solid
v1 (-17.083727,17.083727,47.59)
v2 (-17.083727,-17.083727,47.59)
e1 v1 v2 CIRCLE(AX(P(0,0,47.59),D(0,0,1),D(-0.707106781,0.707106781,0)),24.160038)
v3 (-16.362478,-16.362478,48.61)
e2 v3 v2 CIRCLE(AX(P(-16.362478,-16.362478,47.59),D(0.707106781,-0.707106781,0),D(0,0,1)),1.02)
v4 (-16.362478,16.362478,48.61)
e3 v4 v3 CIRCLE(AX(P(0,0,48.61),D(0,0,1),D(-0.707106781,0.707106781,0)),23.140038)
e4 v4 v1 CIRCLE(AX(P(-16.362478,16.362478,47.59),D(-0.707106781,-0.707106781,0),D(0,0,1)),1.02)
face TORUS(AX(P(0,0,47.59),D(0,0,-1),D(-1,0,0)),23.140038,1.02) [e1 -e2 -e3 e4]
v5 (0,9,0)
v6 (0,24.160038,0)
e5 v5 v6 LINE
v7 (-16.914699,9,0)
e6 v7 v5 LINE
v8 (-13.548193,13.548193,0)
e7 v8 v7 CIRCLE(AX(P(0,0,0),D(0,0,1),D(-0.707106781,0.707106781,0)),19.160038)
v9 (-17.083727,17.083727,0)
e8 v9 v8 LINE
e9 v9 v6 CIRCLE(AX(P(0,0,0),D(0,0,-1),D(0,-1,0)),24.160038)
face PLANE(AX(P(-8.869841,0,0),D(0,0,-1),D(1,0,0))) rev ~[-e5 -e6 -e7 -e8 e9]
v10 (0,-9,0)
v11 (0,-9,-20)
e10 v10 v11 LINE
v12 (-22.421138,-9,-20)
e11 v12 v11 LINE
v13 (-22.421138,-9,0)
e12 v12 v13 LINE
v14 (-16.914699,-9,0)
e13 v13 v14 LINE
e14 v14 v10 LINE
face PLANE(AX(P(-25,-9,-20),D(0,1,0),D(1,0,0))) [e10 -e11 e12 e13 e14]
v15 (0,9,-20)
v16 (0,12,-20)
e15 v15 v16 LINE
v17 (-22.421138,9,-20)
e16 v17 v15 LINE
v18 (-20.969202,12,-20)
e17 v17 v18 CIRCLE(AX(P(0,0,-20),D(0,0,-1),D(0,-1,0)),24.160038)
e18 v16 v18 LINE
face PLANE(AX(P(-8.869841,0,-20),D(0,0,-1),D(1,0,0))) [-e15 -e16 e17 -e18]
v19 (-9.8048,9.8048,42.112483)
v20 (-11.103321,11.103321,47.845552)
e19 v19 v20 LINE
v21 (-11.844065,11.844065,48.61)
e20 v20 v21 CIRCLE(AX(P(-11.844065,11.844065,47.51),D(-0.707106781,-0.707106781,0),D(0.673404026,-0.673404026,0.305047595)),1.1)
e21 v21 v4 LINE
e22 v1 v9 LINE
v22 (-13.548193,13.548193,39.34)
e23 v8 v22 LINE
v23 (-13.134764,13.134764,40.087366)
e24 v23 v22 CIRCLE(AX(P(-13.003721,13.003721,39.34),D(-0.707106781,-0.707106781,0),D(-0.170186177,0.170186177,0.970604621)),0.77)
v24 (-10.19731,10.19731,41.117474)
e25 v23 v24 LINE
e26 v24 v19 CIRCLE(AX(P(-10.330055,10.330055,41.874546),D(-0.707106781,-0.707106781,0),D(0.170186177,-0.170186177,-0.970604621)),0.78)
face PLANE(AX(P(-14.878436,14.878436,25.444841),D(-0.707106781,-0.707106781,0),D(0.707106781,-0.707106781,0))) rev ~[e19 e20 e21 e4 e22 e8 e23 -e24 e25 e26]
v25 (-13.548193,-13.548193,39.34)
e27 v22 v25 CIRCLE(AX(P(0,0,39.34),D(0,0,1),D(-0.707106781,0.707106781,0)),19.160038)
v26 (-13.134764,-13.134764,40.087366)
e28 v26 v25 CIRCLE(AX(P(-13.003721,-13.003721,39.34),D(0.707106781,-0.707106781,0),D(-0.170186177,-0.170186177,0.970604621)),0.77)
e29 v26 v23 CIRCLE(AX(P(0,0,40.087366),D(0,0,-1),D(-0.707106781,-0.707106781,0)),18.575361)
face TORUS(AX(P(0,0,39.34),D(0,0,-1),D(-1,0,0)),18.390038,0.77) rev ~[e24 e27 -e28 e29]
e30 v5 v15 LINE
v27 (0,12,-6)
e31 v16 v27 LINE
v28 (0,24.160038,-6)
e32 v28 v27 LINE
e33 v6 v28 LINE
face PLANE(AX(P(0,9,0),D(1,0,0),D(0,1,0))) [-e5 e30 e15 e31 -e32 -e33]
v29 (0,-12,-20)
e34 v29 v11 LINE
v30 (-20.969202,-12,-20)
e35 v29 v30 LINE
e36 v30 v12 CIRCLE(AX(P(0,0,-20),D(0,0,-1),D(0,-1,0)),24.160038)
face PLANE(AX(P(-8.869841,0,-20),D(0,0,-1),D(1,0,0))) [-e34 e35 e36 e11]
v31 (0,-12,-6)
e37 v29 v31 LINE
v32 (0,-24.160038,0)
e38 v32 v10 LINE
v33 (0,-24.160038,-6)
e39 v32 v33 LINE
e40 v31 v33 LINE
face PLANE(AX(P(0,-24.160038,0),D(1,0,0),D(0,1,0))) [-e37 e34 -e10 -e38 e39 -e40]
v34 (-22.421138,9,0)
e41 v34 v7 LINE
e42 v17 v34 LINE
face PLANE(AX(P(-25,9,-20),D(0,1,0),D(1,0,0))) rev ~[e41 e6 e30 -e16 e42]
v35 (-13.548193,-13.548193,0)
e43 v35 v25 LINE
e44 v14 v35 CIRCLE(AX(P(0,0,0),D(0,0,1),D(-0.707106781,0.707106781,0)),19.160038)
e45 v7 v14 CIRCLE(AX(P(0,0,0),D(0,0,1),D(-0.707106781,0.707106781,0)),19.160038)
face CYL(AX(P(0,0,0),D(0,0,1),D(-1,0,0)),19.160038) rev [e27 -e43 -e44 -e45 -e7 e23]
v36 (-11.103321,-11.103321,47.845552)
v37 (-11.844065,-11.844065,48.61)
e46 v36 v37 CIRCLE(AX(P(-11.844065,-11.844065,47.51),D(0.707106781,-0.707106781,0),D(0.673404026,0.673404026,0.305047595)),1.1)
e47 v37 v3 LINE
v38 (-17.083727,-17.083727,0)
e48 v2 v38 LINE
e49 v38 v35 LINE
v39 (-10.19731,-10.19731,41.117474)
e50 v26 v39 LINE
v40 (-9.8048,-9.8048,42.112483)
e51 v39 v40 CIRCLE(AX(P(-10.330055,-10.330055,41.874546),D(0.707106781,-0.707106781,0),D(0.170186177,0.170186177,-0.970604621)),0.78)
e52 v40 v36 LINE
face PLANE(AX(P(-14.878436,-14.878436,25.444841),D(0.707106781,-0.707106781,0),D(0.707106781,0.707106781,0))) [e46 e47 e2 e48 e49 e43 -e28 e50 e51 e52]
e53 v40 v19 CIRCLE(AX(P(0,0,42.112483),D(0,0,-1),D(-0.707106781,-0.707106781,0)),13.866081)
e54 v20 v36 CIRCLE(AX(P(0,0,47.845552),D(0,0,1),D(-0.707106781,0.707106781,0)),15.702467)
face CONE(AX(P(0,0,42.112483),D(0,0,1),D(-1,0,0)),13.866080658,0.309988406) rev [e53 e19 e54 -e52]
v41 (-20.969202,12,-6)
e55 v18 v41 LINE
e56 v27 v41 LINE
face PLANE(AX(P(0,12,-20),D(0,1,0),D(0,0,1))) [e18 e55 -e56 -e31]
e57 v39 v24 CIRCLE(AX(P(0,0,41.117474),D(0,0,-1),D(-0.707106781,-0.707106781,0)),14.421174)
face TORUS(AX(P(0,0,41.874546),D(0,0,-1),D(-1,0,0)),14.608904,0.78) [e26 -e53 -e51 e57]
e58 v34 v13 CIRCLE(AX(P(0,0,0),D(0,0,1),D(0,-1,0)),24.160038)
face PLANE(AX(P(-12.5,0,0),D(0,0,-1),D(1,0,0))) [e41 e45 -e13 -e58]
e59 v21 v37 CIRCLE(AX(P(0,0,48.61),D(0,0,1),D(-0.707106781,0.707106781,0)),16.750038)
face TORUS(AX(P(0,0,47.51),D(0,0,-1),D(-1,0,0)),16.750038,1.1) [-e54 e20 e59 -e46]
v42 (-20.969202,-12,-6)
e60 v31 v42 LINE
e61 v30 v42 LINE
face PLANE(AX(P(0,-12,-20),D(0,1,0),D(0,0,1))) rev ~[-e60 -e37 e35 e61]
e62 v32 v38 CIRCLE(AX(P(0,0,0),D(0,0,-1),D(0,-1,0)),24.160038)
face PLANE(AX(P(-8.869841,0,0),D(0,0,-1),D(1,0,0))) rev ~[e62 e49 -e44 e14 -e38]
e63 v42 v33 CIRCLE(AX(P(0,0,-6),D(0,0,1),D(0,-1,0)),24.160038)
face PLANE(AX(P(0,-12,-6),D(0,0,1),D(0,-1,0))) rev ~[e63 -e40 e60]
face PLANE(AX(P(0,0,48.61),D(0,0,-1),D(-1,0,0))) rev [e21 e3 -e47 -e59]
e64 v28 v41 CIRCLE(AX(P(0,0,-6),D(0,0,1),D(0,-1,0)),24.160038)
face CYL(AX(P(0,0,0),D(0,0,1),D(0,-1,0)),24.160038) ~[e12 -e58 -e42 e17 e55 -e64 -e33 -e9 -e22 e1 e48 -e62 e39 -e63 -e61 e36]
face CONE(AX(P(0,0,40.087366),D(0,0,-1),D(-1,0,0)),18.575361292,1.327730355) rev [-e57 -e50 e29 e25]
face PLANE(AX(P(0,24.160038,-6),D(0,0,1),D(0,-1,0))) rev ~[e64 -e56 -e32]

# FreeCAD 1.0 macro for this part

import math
import FreeCAD as App
import Part
import Sketcher

V = App.Vector

doc = App.newDocument("Part")
body = doc.addObject("PartDesign::Body", "Body")

# Sketch on XZ plane
sketch1 = body.newObject("Sketcher::SketchObject", "Sketch")
sketch1.AttachmentSupport = (doc.getObject("XZ_Plane"), [""])
sketch1.MapMode = "FlatFace"
sketch1.addGeometry([
    Part.LineSegment(V(-13.9, 42.1, 0), V(-15.7, 47.8, 0)),  # 0
    Part.ArcOfCircle(Part.Circle(V(-16.8, 47.5, 0), V(0, 0, 1), 1.1), math.radians(18), math.radians(90)),  # 1
    Part.LineSegment(V(-16.8, 48.6, 0), V(-23.1, 48.6, 0)),  # 2
    Part.ArcOfCircle(Part.Circle(V(-23.1, 47.6, 0), V(0, 0, 1), 1), math.radians(90), math.radians(180)),  # 3
    Part.LineSegment(V(-24.2, 47.6, 0), V(-24.2, 0, 0)),  # 4
    Part.LineSegment(V(-24.2, 0, 0), V(-19.2, 0, 0)),  # 5
    Part.LineSegment(V(-19.2, 0, 0), V(-19.2, 39.3, 0)),  # 6
    Part.ArcOfCircle(Part.Circle(V(-18.4, 39.3, 0), V(0, 0, 1), 0.8), math.radians(104), math.radians(180)),  # 7
    Part.LineSegment(V(-18.6, 40.1, 0), V(-14.4, 41.1, 0)),  # 8
    Part.ArcOfCircle(Part.Circle(V(-14.6, 41.9, 0), V(0, 0, 1), 0.8), math.radians(-76), math.radians(18)),  # 9
], False)
sketch1.addConstraint([
    Sketcher.Constraint("Tangent", 0, 2, 1, 1),
    Sketcher.Constraint("Tangent", 1, 2, 2, 1),
    Sketcher.Constraint("Tangent", 2, 2, 3, 1),
    Sketcher.Constraint("Tangent", 3, 2, 4, 1),
    Sketcher.Constraint("Coincident", 4, 2, 5, 1),
    Sketcher.Constraint("Coincident", 5, 2, 6, 1),
    Sketcher.Constraint("Tangent", 6, 2, 7, 2),
    Sketcher.Constraint("Tangent", 7, 1, 8, 1),
    Sketcher.Constraint("Tangent", 8, 2, 9, 1),
    Sketcher.Constraint("Tangent", 9, 2, 0, 1),
    Sketcher.Constraint("Horizontal", 2),
    Sketcher.Constraint("Vertical", 4),
    Sketcher.Constraint("Horizontal", 5),
    Sketcher.Constraint("Vertical", 6),
    Sketcher.Constraint("PointOnObject", 4, 2, -1),
    Sketcher.Constraint("Radius", 1, 1.1),
    Sketcher.Constraint("DistanceX", 5, 1, 5, 2, 5.0),
    Sketcher.Constraint("Radius", 3, 1.02),
    Sketcher.Constraint("Radius", 7, 0.77),
    Sketcher.Constraint("Radius", 9, 0.78),
    Sketcher.Constraint("DistanceX", 2, 2, 2, 1, 6.39),
    Sketcher.Constraint("DistanceY", 4, 2, 4, 1, 47.59),
    Sketcher.Constraint("DistanceY", 6, 1, 6, 2, 39.34),
    Sketcher.Constraint("Distance", 0, 6.02),
    Sketcher.Constraint("Distance", 8, 4.28),
    Sketcher.Constraint("DistanceX", 1, 3, -1, 1, 16.750038),
])
revolution = body.newObject("PartDesign::Revolution", "Revolution")
revolution.Profile = sketch1
revolution.ReferenceAxis = (sketch1, ["V_Axis"])
revolution.Angle = 45

# Sketch on XZ plane
sketch2 = body.newObject("Sketcher::SketchObject", "Sketch001")
sketch2.AttachmentSupport = (doc.getObject("XZ_Plane"), [""])
sketch2.MapMode = "FlatFace"
sketch2.addGeometry([
    Part.LineSegment(V(-13.9, 42.1, 0), V(-15.7, 47.8, 0)),  # 0
    Part.ArcOfCircle(Part.Circle(V(-16.8, 47.5, 0), V(0, 0, 1), 1.1), math.radians(18), math.radians(90)),  # 1
    Part.LineSegment(V(-16.8, 48.6, 0), V(-23.1, 48.6, 0)),  # 2
    Part.ArcOfCircle(Part.Circle(V(-23.1, 47.6, 0), V(0, 0, 1), 1), math.radians(90), math.radians(180)),  # 3
    Part.LineSegment(V(-24.2, 47.6, 0), V(-24.2, 0, 0)),  # 4
    Part.LineSegment(V(-24.2, 0, 0), V(-19.2, 0, 0)),  # 5
    Part.LineSegment(V(-19.2, 0, 0), V(-19.2, 39.3, 0)),  # 6
    Part.ArcOfCircle(Part.Circle(V(-18.4, 39.3, 0), V(0, 0, 1), 0.8), math.radians(104), math.radians(180)),  # 7
    Part.LineSegment(V(-18.6, 40.1, 0), V(-14.4, 41.1, 0)),  # 8
    Part.ArcOfCircle(Part.Circle(V(-14.6, 41.9, 0), V(0, 0, 1), 0.8), math.radians(-76), math.radians(18)),  # 9
], False)
sketch2.addConstraint([
    Sketcher.Constraint("Tangent", 0, 2, 1, 1),
    Sketcher.Constraint("Tangent", 1, 2, 2, 1),
    Sketcher.Constraint("Tangent", 2, 2, 3, 1),
    Sketcher.Constraint("Tangent", 3, 2, 4, 1),
    Sketcher.Constraint("Coincident", 4, 2, 5, 1),
    Sketcher.Constraint("Coincident", 5, 2, 6, 1),
    Sketcher.Constraint("Tangent", 6, 2, 7, 2),
    Sketcher.Constraint("Tangent", 7, 1, 8, 1),
    Sketcher.Constraint("Tangent", 8, 2, 9, 1),
    Sketcher.Constraint("Tangent", 9, 2, 0, 1),
    Sketcher.Constraint("Horizontal", 2),
    Sketcher.Constraint("Vertical", 4),
    Sketcher.Constraint("Horizontal", 5),
    Sketcher.Constraint("Vertical", 6),
    Sketcher.Constraint("PointOnObject", 4, 2, -1),
    Sketcher.Constraint("Radius", 1, 1.1),
    Sketcher.Constraint("DistanceX", 5, 1, 5, 2, 5.0),
    Sketcher.Constraint("Radius", 3, 1.02),
    Sketcher.Constraint("Radius", 7, 0.77),
    Sketcher.Constraint("Radius", 9, 0.78),
    Sketcher.Constraint("DistanceX", 2, 2, 2, 1, 6.39),
    Sketcher.Constraint("DistanceY", 4, 2, 4, 1, 47.59),
    Sketcher.Constraint("DistanceY", 6, 1, 6, 2, 39.34),
    Sketcher.Constraint("Distance", 0, 6.02),
    Sketcher.Constraint("Distance", 8, 4.28),
    Sketcher.Constraint("DistanceX", 1, 3, -1, 1, 16.750038),
])
revolution2 = body.newObject("PartDesign::Revolution", "Revolution001")
revolution2.Profile = sketch2
revolution2.ReferenceAxis = (sketch2, ["V_Axis"])
revolution2.Angle = 45
revolution2.Reversed = True

# Sketch on XY plane
sketch3 = body.newObject("Sketcher::SketchObject", "Sketch002")
sketch3.AttachmentSupport = (doc.getObject("XY_Plane"), [""])
sketch3.MapMode = "FlatFace"
sketch3.addGeometry([
    Part.ArcOfCircle(Part.Circle(V(0, 0, 0), V(0, 0, 1), 24), math.radians(90), math.radians(270)),
    Part.LineSegment(V(0, 24, 0), V(0, 9, 0)),
    Part.ArcOfCircle(Part.Circle(V(0, 0, 0), V(0, 0, 1), 9), math.radians(90), math.radians(270)),
    Part.LineSegment(V(0, -9, 0), V(0, -24, 0)),
], False)
sketch3.addConstraint([
    Sketcher.Constraint("Coincident", 0, 1, 1, 1),
    Sketcher.Constraint("Coincident", 1, 2, 2, 1),
    Sketcher.Constraint("Coincident", 2, 2, 3, 1),
    Sketcher.Constraint("Coincident", 3, 2, 0, 2),
    Sketcher.Constraint("Vertical", 1),
    Sketcher.Constraint("Vertical", 3),
    Sketcher.Constraint("Coincident", 0, 3, -1, 1),
    Sketcher.Constraint("Coincident", 2, 3, -1, 1),
    Sketcher.Constraint("PointOnObject", 0, 1, -2),
    Sketcher.Constraint("PointOnObject", 2, 2, -2),
    Sketcher.Constraint("Radius", 2, 9.0),
    Sketcher.Constraint("Radius", 0, 24.160038),
])
pad1 = body.newObject("PartDesign::Pad", "Pad")
pad1.Profile = sketch3
pad1.Length = 20
pad1.Reversed = True

# Sketch on YZ plane
sketch4 = body.newObject("Sketcher::SketchObject", "Sketch003")
sketch4.AttachmentSupport = (doc.getObject("YZ_Plane"), [""])
sketch4.MapMode = "FlatFace"
sketch4.addGeometry([
    Part.LineSegment(V(-24, -20, 0), V(-12, -20, 0)),  # 0
    Part.LineSegment(V(-12, -20, 0), V(-12, -6, 0)),  # 1
    Part.LineSegment(V(-12, -6, 0), V(-24, -6, 0)),  # 2
    Part.LineSegment(V(-24, -6, 0), V(-24, -20, 0)),  # 3
    Part.LineSegment(V(12, -20, 0), V(24, -20, 0)),  # 4
    Part.LineSegment(V(24, -20, 0), V(24, -6, 0)),  # 5
    Part.LineSegment(V(24, -6, 0), V(12, -6, 0)),  # 6
    Part.LineSegment(V(12, -6, 0), V(12, -20, 0)),  # 7
], False)
sketch4.addConstraint([
    Sketcher.Constraint("Coincident", 0, 2, 1, 1),
    Sketcher.Constraint("Coincident", 1, 2, 2, 1),
    Sketcher.Constraint("Coincident", 2, 2, 3, 1),
    Sketcher.Constraint("Coincident", 3, 2, 0, 1),
    Sketcher.Constraint("Coincident", 4, 2, 5, 1),
    Sketcher.Constraint("Coincident", 5, 2, 6, 1),
    Sketcher.Constraint("Coincident", 6, 2, 7, 1),
    Sketcher.Constraint("Coincident", 7, 2, 4, 1),
    Sketcher.Constraint("Horizontal", 0),
    Sketcher.Constraint("Vertical", 1),
    Sketcher.Constraint("Horizontal", 2),
    Sketcher.Constraint("Vertical", 3),
    Sketcher.Constraint("Horizontal", 4),
    Sketcher.Constraint("Vertical", 5),
    Sketcher.Constraint("Horizontal", 6),
    Sketcher.Constraint("Vertical", 7),
    Sketcher.Constraint("Symmetric", 3, 2, 4, 2, -2),
    Sketcher.Constraint("Symmetric", 1, 2, 6, 2, -2),
    Sketcher.Constraint("DistanceY", 1, 1, 1, 2, 14.0),
    Sketcher.Constraint("DistanceX", 0, 2, -1, 1, 12.0),
    Sketcher.Constraint("DistanceY", 0, 2, -1, 1, 20.0),
    Sketcher.Constraint("DistanceX", 0, 1, 0, 2, 12.160038),
])
pocket1 = body.newObject("PartDesign::Pocket", "Pocket")
pocket1.Profile = sketch4
pocket1.Type = "ThroughAll"

# Sketch on XY plane
sketch5 = body.newObject("Sketcher::SketchObject", "Sketch004")
sketch5.AttachmentSupport = (doc.getObject("XY_Plane"), [""])
sketch5.MapMode = "FlatFace"
sketch5.AttachmentOffset = App.Placement(V(0, 0, -6), App.Rotation())
sketch5.addGeometry(Part.Circle(V(-10, 5, 0), V(0, 0, 1), 2), False)
sketch5.addConstraint([
    Sketcher.Constraint("Diameter", 0, 4.0),
    Sketcher.Constraint("DistanceX", 0, 3, -1, 1, 10.0),
    Sketcher.Constraint("DistanceY", -1, 1, 0, 3, 5.0),
])
pocket2 = body.newObject("PartDesign::Pocket", "Pocket001")
pocket2.Profile = sketch5
pocket2.Type = "ThroughAll"
pocket2.Reversed = True

# Sketch on XY plane
sketch6 = body.newObject("Sketcher::SketchObject", "Sketch005")
sketch6.AttachmentSupport = (doc.getObject("XY_Plane"), [""])
sketch6.MapMode = "FlatFace"
sketch6.AttachmentOffset = App.Placement(V(0, 0, -20), App.Rotation())
sketch6.addGeometry([
    Part.LineSegment(V(-25, -9, 0), V(-25, 9, 0)),
    Part.LineSegment(V(-25, 9, 0), V(0, 9, 0)),
    Part.LineSegment(V(0, 9, 0), V(0, -9, 0)),
    Part.LineSegment(V(0, -9, 0), V(-25, -9, 0)),
], False)
sketch6.addConstraint([
    Sketcher.Constraint("Coincident", 0, 2, 1, 1),
    Sketcher.Constraint("Coincident", 1, 2, 2, 1),
    Sketcher.Constraint("Coincident", 2, 2, 3, 1),
    Sketcher.Constraint("Coincident", 3, 2, 0, 1),
    Sketcher.Constraint("Vertical", 0),
    Sketcher.Constraint("Horizontal", 1),
    Sketcher.Constraint("Vertical", 2),
    Sketcher.Constraint("Horizontal", 3),
    Sketcher.Constraint("Symmetric", 1, 2, 2, 2, -1, 1),
    Sketcher.Constraint("DistanceX", 1, 1, 1, 2, 25.0),
    Sketcher.Constraint("DistanceY", 0, 1, 0, 2, 18.0),
])
pocket3 = body.newObject("PartDesign::Pocket", "Pocket002")
pocket3.Profile = sketch6
pocket3.Length = 20
pocket3.Reversed = True

doc.recompute()
